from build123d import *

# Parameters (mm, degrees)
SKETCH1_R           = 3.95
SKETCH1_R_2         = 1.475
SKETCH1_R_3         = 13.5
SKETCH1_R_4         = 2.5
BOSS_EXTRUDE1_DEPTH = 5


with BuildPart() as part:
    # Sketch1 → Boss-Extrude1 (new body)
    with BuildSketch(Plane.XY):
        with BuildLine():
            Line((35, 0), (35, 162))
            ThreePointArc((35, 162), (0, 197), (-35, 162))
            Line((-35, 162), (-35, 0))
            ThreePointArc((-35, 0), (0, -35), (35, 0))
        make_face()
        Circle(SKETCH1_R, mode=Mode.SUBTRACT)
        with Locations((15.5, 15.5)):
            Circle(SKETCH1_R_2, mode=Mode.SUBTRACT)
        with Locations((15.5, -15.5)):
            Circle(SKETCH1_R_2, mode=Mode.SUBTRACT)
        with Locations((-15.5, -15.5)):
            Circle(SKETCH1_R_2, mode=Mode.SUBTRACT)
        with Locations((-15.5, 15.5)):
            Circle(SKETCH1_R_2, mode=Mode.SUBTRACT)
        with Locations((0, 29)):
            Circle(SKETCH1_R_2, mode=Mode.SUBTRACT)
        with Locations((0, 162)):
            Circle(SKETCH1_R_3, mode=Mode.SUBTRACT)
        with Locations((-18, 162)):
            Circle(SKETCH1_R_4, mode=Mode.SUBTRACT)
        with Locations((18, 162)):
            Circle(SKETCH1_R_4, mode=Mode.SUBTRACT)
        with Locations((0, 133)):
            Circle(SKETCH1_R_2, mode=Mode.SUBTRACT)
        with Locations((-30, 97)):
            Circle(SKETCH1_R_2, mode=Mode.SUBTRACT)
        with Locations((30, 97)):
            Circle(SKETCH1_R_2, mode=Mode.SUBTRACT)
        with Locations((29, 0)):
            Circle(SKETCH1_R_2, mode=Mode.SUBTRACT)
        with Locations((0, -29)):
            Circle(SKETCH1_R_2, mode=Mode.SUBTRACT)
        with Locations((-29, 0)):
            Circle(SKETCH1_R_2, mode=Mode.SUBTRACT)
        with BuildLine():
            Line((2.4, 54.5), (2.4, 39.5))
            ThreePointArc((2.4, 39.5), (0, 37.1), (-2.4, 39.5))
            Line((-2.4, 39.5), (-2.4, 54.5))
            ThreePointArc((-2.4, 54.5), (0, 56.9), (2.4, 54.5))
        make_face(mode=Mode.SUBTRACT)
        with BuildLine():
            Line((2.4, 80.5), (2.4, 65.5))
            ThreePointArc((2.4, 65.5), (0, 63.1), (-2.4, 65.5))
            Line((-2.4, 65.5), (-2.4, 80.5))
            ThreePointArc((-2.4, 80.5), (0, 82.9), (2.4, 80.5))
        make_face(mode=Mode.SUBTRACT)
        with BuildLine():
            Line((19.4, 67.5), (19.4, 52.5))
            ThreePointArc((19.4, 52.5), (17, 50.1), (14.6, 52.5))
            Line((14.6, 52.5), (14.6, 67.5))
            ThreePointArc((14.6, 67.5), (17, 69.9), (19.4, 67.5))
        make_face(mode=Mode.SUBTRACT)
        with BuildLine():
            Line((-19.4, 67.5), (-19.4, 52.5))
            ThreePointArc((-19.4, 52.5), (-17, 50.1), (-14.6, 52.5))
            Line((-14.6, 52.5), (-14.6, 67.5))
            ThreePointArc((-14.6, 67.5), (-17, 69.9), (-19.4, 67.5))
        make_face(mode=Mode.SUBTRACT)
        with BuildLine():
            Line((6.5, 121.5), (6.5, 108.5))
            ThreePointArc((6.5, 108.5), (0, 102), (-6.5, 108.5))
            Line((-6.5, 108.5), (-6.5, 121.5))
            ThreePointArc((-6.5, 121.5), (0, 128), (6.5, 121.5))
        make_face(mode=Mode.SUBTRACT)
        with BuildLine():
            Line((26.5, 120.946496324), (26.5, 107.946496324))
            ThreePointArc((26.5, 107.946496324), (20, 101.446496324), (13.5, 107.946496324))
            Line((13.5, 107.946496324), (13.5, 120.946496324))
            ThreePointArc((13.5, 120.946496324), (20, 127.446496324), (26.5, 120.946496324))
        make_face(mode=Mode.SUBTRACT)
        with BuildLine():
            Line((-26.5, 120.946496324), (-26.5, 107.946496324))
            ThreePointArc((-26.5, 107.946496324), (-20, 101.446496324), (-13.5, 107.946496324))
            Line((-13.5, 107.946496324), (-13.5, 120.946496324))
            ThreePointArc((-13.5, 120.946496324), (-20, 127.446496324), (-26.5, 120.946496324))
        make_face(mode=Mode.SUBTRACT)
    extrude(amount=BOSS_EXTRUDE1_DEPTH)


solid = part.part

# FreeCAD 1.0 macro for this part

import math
import FreeCAD as App
import Part
import Sketcher
Q = App.Units.Quantity

doc = App.newDocument("Part")
body = doc.addObject("PartDesign::Body", "Body")

# Sketch on XY plane
sketch1 = body.newObject("Sketcher::SketchObject", "Sketch")
sketch1.AttachmentSupport = (doc.getObject("XY_Plane"), [""])
sketch1.MapMode = "FlatFace"
sketch1.addGeometry([
    Part.LineSegment(App.Vector(35, 0, 0), App.Vector(35, 162, 0)),  # 0
    Part.ArcOfCircle(Part.Circle(App.Vector(0, 162, 0), App.Vector(0, 0, 1), 35), math.radians(0), math.radians(180)),  # 1
    Part.LineSegment(App.Vector(-35, 162, 0), App.Vector(-35, 0, 0)),  # 2
    Part.ArcOfCircle(Part.Circle(App.Vector(0, 0, 0), App.Vector(0, 0, 1), 35), math.radians(180), math.radians(360)),  # 3
    Part.Circle(App.Vector(-29, 0, 0), App.Vector(0, 0, 1), 1.475),  # 4
    Part.Circle(App.Vector(-15.5, -15.5, 0), App.Vector(0, 0, 1), 1.475),  # 5
    Part.Circle(App.Vector(-15.5, 15.5, 0), App.Vector(0, 0, 1), 1.475),  # 6
    Part.LineSegment(App.Vector(-19.4, 52.5, 0), App.Vector(-19.4, 67.5, 0)),  # 7
    Part.ArcOfCircle(Part.Circle(App.Vector(-17, 67.5, 0), App.Vector(0, 0, 1), 2.4), math.radians(0), math.radians(180)),  # 8
    Part.LineSegment(App.Vector(-14.6, 67.5, 0), App.Vector(-14.6, 52.5, 0)),  # 9
    Part.ArcOfCircle(Part.Circle(App.Vector(-17, 52.5, 0), App.Vector(0, 0, 1), 2.4), math.radians(180), math.radians(360)),  # 10
    Part.Circle(App.Vector(0, -29, 0), App.Vector(0, 0, 1), 1.475),  # 11
    Part.Circle(App.Vector(15.5, -15.5, 0), App.Vector(0, 0, 1), 1.475),  # 12
    Part.Circle(App.Vector(0, 0, 0), App.Vector(0, 0, 1), 3.95),  # 13
    Part.Circle(App.Vector(15.5, 15.5, 0), App.Vector(0, 0, 1), 1.475),  # 14
    Part.Circle(App.Vector(29, 0, 0), App.Vector(0, 0, 1), 1.475),  # 15
    Part.Circle(App.Vector(0, 29, 0), App.Vector(0, 0, 1), 1.475),  # 16
    Part.ArcOfCircle(Part.Circle(App.Vector(0, 54.5, 0), App.Vector(0, 0, 1), 2.4), math.radians(0), math.radians(180)),  # 17
    Part.LineSegment(App.Vector(2.4, 54.5, 0), App.Vector(2.4, 39.5, 0)),  # 18
    Part.ArcOfCircle(Part.Circle(App.Vector(0, 39.5, 0), App.Vector(0, 0, 1), 2.4), math.radians(180), math.radians(360)),  # 19
    Part.LineSegment(App.Vector(-2.4, 39.5, 0), App.Vector(-2.4, 54.5, 0)),  # 20
    Part.ArcOfCircle(Part.Circle(App.Vector(17, 67.5, 0), App.Vector(0, 0, 1), 2.4), math.radians(0), math.radians(180)),  # 21
    Part.LineSegment(App.Vector(19.4, 67.5, 0), App.Vector(19.4, 52.5, 0)),  # 22
    Part.ArcOfCircle(Part.Circle(App.Vector(17, 52.5, 0), App.Vector(0, 0, 1), 2.4), math.radians(180), math.radians(360)),  # 23
    Part.LineSegment(App.Vector(14.6, 52.5, 0), App.Vector(14.6, 67.5, 0)),  # 24
    Part.Circle(App.Vector(-30, 97, 0), App.Vector(0, 0, 1), 1.475),  # 25
    Part.LineSegment(App.Vector(-26.5, 107.946496, 0), App.Vector(-26.5, 120.946496, 0)),  # 26
    Part.ArcOfCircle(Part.Circle(App.Vector(-20, 120.946496, 0), App.Vector(0, 0, 1), 6.5), math.radians(0), math.radians(180)),  # 27
    Part.LineSegment(App.Vector(-13.5, 120.946496, 0), App.Vector(-13.5, 107.946496, 0)),  # 28
    Part.ArcOfCircle(Part.Circle(App.Vector(-20, 107.946496, 0), App.Vector(0, 0, 1), 6.5), math.radians(180), math.radians(360)),  # 29
    Part.Circle(App.Vector(-18, 162, 0), App.Vector(0, 0, 1), 2.5),  # 30
    Part.ArcOfCircle(Part.Circle(App.Vector(0, 80.5, 0), App.Vector(0, 0, 1), 2.4), math.radians(0), math.radians(180)),  # 31
    Part.LineSegment(App.Vector(2.4, 80.5, 0), App.Vector(2.4, 65.5, 0)),  # 32
    Part.ArcOfCircle(Part.Circle(App.Vector(0, 65.5, 0), App.Vector(0, 0, 1), 2.4), math.radians(180), math.radians(360)),  # 33
    Part.LineSegment(App.Vector(-2.4, 65.5, 0), App.Vector(-2.4, 80.5, 0)),  # 34
    Part.ArcOfCircle(Part.Circle(App.Vector(0, 121.5, 0), App.Vector(0, 0, 1), 6.5), math.radians(0), math.radians(180)),  # 35
    Part.LineSegment(App.Vector(6.5, 121.5, 0), App.Vector(6.5, 108.5, 0)),  # 36
    Part.ArcOfCircle(Part.Circle(App.Vector(0, 108.5, 0), App.Vector(0, 0, 1), 6.5), math.radians(180), math.radians(360)),  # 37
    Part.LineSegment(App.Vector(-6.5, 108.5, 0), App.Vector(-6.5, 121.5, 0)),  # 38
    Part.Circle(App.Vector(30, 97, 0), App.Vector(0, 0, 1), 1.475),  # 39
    Part.ArcOfCircle(Part.Circle(App.Vector(20, 120.946496, 0), App.Vector(0, 0, 1), 6.5), math.radians(0), math.radians(180)),  # 40
    Part.LineSegment(App.Vector(26.5, 120.946496, 0), App.Vector(26.5, 107.946496, 0)),  # 41
    Part.ArcOfCircle(Part.Circle(App.Vector(20, 107.946496, 0), App.Vector(0, 0, 1), 6.5), math.radians(180), math.radians(360)),  # 42
    Part.LineSegment(App.Vector(13.5, 107.946496, 0), App.Vector(13.5, 120.946496, 0)),  # 43
    Part.Circle(App.Vector(0, 133, 0), App.Vector(0, 0, 1), 1.475),  # 44
    Part.Circle(App.Vector(0, 162, 0), App.Vector(0, 0, 1), 13.5),  # 45
    Part.Circle(App.Vector(18, 162, 0), App.Vector(0, 0, 1), 2.5),  # 46
], False)
sketch1.addConstraint([
    Sketcher.Constraint("Tangent", 0, 2, 1, 1),
    Sketcher.Constraint("Tangent", 1, 2, 2, 1),
    Sketcher.Constraint("Tangent", 2, 2, 3, 1),
    Sketcher.Constraint("Tangent", 3, 2, 0, 1),
    Sketcher.Constraint("Tangent", 7, 2, 8, 2),
    Sketcher.Constraint("Tangent", 8, 1, 9, 1),
    Sketcher.Constraint("Tangent", 9, 2, 10, 2),
    Sketcher.Constraint("Tangent", 10, 1, 7, 1),
    Sketcher.Constraint("Tangent", 17, 1, 18, 1),
    Sketcher.Constraint("Tangent", 18, 2, 19, 2),
    Sketcher.Constraint("Tangent", 19, 1, 20, 1),
    Sketcher.Constraint("Tangent", 20, 2, 17, 2),
    Sketcher.Constraint("Tangent", 21, 1, 22, 1),
    Sketcher.Constraint("Tangent", 22, 2, 23, 2),
    Sketcher.Constraint("Tangent", 23, 1, 24, 1),
    Sketcher.Constraint("Tangent", 24, 2, 21, 2),
    Sketcher.Constraint("Tangent", 26, 2, 27, 2),
    Sketcher.Constraint("Tangent", 27, 1, 28, 1),
    Sketcher.Constraint("Tangent", 28, 2, 29, 2),
    Sketcher.Constraint("Tangent", 29, 1, 26, 1),
    Sketcher.Constraint("Tangent", 31, 1, 32, 1),
    Sketcher.Constraint("Tangent", 32, 2, 33, 2),
    Sketcher.Constraint("Tangent", 33, 1, 34, 1),
    Sketcher.Constraint("Tangent", 34, 2, 31, 2),
    Sketcher.Constraint("Tangent", 35, 1, 36, 1),
    Sketcher.Constraint("Tangent", 36, 2, 37, 2),
    Sketcher.Constraint("Tangent", 37, 1, 38, 1),
    Sketcher.Constraint("Tangent", 38, 2, 35, 2),
    Sketcher.Constraint("Tangent", 40, 1, 41, 1),
    Sketcher.Constraint("Tangent", 41, 2, 42, 2),
    Sketcher.Constraint("Tangent", 42, 1, 43, 1),
    Sketcher.Constraint("Tangent", 43, 2, 40, 2),
    Sketcher.Constraint("Vertical", 0),
    Sketcher.Constraint("Vertical", 2),
    Sketcher.Constraint("Vertical", 7),
    Sketcher.Constraint("Vertical", 9),
    Sketcher.Constraint("Vertical", 18),
    Sketcher.Constraint("Vertical", 20),
    Sketcher.Constraint("Vertical", 22),
    Sketcher.Constraint("Vertical", 24),
    Sketcher.Constraint("Vertical", 26),
    Sketcher.Constraint("Vertical", 28),
    Sketcher.Constraint("Vertical", 32),
    Sketcher.Constraint("Vertical", 34),
    Sketcher.Constraint("Vertical", 36),
    Sketcher.Constraint("Vertical", 38),
    Sketcher.Constraint("Vertical", 41),
    Sketcher.Constraint("Vertical", 43),
    Sketcher.Constraint("Coincident", 3, 3, -1, 1),
    Sketcher.Constraint("Coincident", 13, 3, -1, 1),
    Sketcher.Constraint("Coincident", 45, 3, 1, 3),
    Sketcher.Constraint("Equal", 4, 5),
    Sketcher.Constraint("Equal", 5, 6),
    Sketcher.Constraint("Equal", 6, 11),
    Sketcher.Constraint("Equal", 11, 12),
    Sketcher.Constraint("Equal", 12, 14),
    Sketcher.Constraint("Equal", 14, 15),
    Sketcher.Constraint("Equal", 15, 16),
    Sketcher.Constraint("Equal", 10, 17),
    Sketcher.Constraint("Equal", 19, 21),
    Sketcher.Constraint("Equal", 16, 25),
    Sketcher.Constraint("Equal", 23, 31),
    Sketcher.Constraint("Equal", 29, 35),
    Sketcher.Constraint("Equal", 25, 39),
    Sketcher.Constraint("Equal", 37, 40),
    Sketcher.Constraint("Equal", 39, 44),
    Sketcher.Constraint("Equal", 30, 46),
    Sketcher.Constraint("Symmetric", 6, 3, 12, 3, -1, 1),
    Sketcher.Constraint("Symmetric", 5, 3, 14, 3, -1, 1),
    Sketcher.Constraint("Symmetric", 4, 3, 15, 3, -1, 1),
    Sketcher.Constraint("Symmetric", 11, 3, 16, 3, -1, 1),
    Sketcher.Constraint("Symmetric", 5, 3, 12, 3, -2),
    Sketcher.Constraint("Symmetric", 8, 3, 21, 3, -2),
    Sketcher.Constraint("Symmetric", 25, 3, 39, 3, -2),
    Sketcher.Constraint("Symmetric", 27, 3, 40, 3, -2),
    Sketcher.Constraint("Symmetric", 30, 3, 46, 3, -2),
    Sketcher.Constraint("PointOnObject", 4, 3, -1),
    Sketcher.Constraint("PointOnObject", 11, 3, -2),
    Sketcher.Constraint("PointOnObject", 17, 3, -2),
    Sketcher.Constraint("PointOnObject", 31, 3, -2),
    Sketcher.Constraint("PointOnObject", 35, 3, -2),
    Sketcher.Constraint("PointOnObject", 44, 3, -2),
    Sketcher.Constraint("Horizontal", 10, 3, 23, 3),
    Sketcher.Constraint("Horizontal", 1, 3, 30, 3),
    Sketcher.Constraint("Horizontal", 29, 3, 42, 3),
    Sketcher.Constraint("Equal", 9, 18),
    Sketcher.Constraint("Equal", 24, 32),
    Sketcher.Constraint("Equal", 28, 36),
    Sketcher.Constraint("Diameter", 30, Q("5 mm")),
    Sketcher.Constraint("Diameter", 45, Q("27 mm")),
    Sketcher.Constraint("Radius", 1, Q("35 mm")),
    Sketcher.Constraint("Diameter", 13, Q("7.9 mm")),
    Sketcher.Constraint("Radius", 8, Q("2.4 mm")),
    Sketcher.Constraint("Radius", 27, Q("6.5 mm")),
    Sketcher.Constraint("Diameter", 4, Q("2.95 mm")),
    Sketcher.Constraint("DistanceY", 0, 1, 0, 2, Q("162 mm")),
    Sketcher.Constraint("DistanceY", 7, 1, 7, 2, Q("15 mm")),
    Sketcher.Constraint("DistanceY", 26, 1, 26, 2, Q("13 mm")),
    Sketcher.Constraint("DistanceX", 4, 3, -1, 1, Q("29 mm")),
    Sketcher.Constraint("DistanceX", 8, 3, -1, 1, Q("17 mm")),
    Sketcher.Constraint("DistanceY", 11, 3, -1, 1, Q("29 mm")),
    Sketcher.Constraint("DistanceX", 25, 3, -1, 1, Q("30 mm")),
    Sketcher.Constraint("DistanceY", -1, 1, 25, 3, Q("97 mm")),
    Sketcher.Constraint("DistanceX", 27, 3, -1, 1, Q("20 mm")),
    Sketcher.Constraint("DistanceX", 30, 3, -1, 1, Q("18 mm")),
    Sketcher.Constraint("DistanceY", -1, 1, 44, 3, Q("133 mm")),
    Sketcher.Constraint("DistanceX", 5, 3, -1, 1, Q("15.5 mm")),
    Sketcher.Constraint("DistanceY", 5, 3, -1, 1, Q("15.5 mm")),
    Sketcher.Constraint("DistanceY", -1, 1, 8, 3, Q("67.5 mm")),
    Sketcher.Constraint("DistanceY", -1, 1, 17, 3, Q("54.5 mm")),
    Sketcher.Constraint("DistanceY", -1, 1, 31, 3, Q("80.5 mm")),
    Sketcher.Constraint("DistanceY", -1, 1, 35, 3, Q("121.5 mm")),
    Sketcher.Constraint("DistanceY", -1, 1, 27, 3, Q("120.946496 mm")),
])
pad1 = body.newObject("PartDesign::Pad", "Pad")
pad1.Profile = sketch1
pad1.Length = 5

doc.recompute()
